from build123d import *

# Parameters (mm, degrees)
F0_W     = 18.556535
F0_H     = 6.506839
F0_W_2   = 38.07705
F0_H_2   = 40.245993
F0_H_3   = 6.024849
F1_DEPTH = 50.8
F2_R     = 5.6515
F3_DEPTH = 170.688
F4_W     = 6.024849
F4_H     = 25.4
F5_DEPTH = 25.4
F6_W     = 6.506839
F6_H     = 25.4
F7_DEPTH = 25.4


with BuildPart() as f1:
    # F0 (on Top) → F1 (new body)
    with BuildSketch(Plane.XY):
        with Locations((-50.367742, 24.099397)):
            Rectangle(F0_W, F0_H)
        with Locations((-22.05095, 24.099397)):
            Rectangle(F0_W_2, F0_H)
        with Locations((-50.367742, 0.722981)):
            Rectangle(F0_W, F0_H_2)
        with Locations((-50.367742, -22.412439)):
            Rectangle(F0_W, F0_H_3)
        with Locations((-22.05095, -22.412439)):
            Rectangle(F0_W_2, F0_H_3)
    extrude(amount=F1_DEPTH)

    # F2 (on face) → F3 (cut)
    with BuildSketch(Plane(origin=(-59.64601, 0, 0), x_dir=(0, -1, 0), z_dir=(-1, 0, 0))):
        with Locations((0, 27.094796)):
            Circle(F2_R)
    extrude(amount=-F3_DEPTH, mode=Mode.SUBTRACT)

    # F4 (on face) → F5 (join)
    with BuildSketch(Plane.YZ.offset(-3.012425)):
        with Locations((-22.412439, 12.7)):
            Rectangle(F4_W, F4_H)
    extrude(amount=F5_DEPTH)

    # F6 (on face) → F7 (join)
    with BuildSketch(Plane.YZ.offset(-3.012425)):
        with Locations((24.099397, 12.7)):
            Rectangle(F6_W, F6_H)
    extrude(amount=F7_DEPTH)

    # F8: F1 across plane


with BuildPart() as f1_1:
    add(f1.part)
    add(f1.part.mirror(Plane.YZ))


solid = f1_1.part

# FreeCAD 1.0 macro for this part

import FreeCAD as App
import Part
import Sketcher

V = App.Vector
Q = App.Units.Quantity

doc = App.newDocument("Part")
body = doc.addObject("PartDesign::Body", "Body")

# Sketch on XY plane
sketch1 = body.newObject("Sketcher::SketchObject", "Sketch")
sketch1.AttachmentSupport = (doc.getObject("XY_Plane"), [""])
sketch1.MapMode = "FlatFace"
sketch1.addGeometry([
    Part.LineSegment(V(-3, 21, 0), V(-3, 27, 0)),  # 0
    Part.LineSegment(V(-3, 27, 0), V(-60, 27, 0)),  # 1
    Part.LineSegment(V(-60, 27, 0), V(-60, -25, 0)),  # 2
    Part.LineSegment(V(-60, -25, 0), V(-3, -25, 0)),  # 3
    Part.LineSegment(V(-3, -25, 0), V(-3, -19, 0)),  # 4
    Part.LineSegment(V(-3, -19, 0), V(-41, -19, 0)),  # 5
    Part.LineSegment(V(-41, -19, 0), V(-41, 21, 0)),  # 6
    Part.LineSegment(V(-41, 21, 0), V(-3, 21, 0)),  # 7
], False)
sketch1.addConstraint([
    Sketcher.Constraint("Coincident", 0, 2, 1, 1),
    Sketcher.Constraint("Coincident", 1, 2, 2, 1),
    Sketcher.Constraint("Coincident", 2, 2, 3, 1),
    Sketcher.Constraint("Coincident", 3, 2, 4, 1),
    Sketcher.Constraint("Coincident", 4, 2, 5, 1),
    Sketcher.Constraint("Coincident", 5, 2, 6, 1),
    Sketcher.Constraint("Coincident", 6, 2, 7, 1),
    Sketcher.Constraint("Coincident", 7, 2, 0, 1),
    Sketcher.Constraint("Vertical", 0),
    Sketcher.Constraint("Horizontal", 1),
    Sketcher.Constraint("Vertical", 2),
    Sketcher.Constraint("Horizontal", 3),
    Sketcher.Constraint("Vertical", 4),
    Sketcher.Constraint("Horizontal", 5),
    Sketcher.Constraint("Vertical", 6),
    Sketcher.Constraint("Horizontal", 7),
    Sketcher.Constraint("Vertical", 0, 2, 3, 2),
    Sketcher.Constraint("DistanceX", 5, 2, 5, 1, Q("38.07705 mm")),
    Sketcher.Constraint("DistanceY", 0, 1, 0, 2, Q("6.506839 mm")),
    Sketcher.Constraint("DistanceY", 2, 2, 2, 1, Q("52.77768 mm")),
    Sketcher.Constraint("DistanceY", 4, 1, 4, 2, Q("6.024849 mm")),
    Sketcher.Constraint("DistanceX", 1, 2, 1, 1, Q("56.633584 mm")),
    Sketcher.Constraint("DistanceX", 1, 2, -1, 1, Q("59.646009 mm")),
    Sketcher.Constraint("DistanceY", -1, 1, 0, 2, Q("27.352816 mm")),
])
pad1 = body.newObject("PartDesign::Pad", "Pad")
pad1.Profile = sketch1
pad1.Length = Q("2 in")

# Sketch on YZ plane
sketch2 = body.newObject("Sketcher::SketchObject", "Sketch001")
sketch2.AttachmentSupport = (doc.getObject("YZ_Plane"), [""])
sketch2.MapMode = "FlatFace"
sketch2.AttachmentOffset = App.Placement(V(0, 0, -59.64601), App.Rotation())
sketch2.addGeometry(Part.Circle(V(0, 27, 0), V(0, 0, 1), 6), False)
sketch2.addConstraint([
    Sketcher.Constraint("PointOnObject", 0, 3, -2),
    Sketcher.Constraint("Diameter", 0, Q("0.445 in")),
    Sketcher.Constraint("DistanceY", -1, 1, 0, 3, Q("27.094796 mm")),
])
pocket1 = body.newObject("PartDesign::Pocket", "Pocket")
pocket1.Profile = sketch2
pocket1.Length = Q("6.72 in")
pocket1.Reversed = True

# Sketch on YZ plane
sketch3 = body.newObject("Sketcher::SketchObject", "Sketch002")
sketch3.AttachmentSupport = (doc.getObject("YZ_Plane"), [""])
sketch3.MapMode = "FlatFace"
sketch3.AttachmentOffset = App.Placement(V(0, 0, -3.012425), App.Rotation())
sketch3.addGeometry([
    Part.LineSegment(V(-25, 25, 0), V(-25, 0, 0)),
    Part.LineSegment(V(-25, 0, 0), V(-19, 0, 0)),
    Part.LineSegment(V(-19, 0, 0), V(-19, 25, 0)),
    Part.LineSegment(V(-19, 25, 0), V(-25, 25, 0)),
], False)
sketch3.addConstraint([
    Sketcher.Constraint("Coincident", 0, 2, 1, 1),
    Sketcher.Constraint("Coincident", 1, 2, 2, 1),
    Sketcher.Constraint("Coincident", 2, 2, 3, 1),
    Sketcher.Constraint("Coincident", 3, 2, 0, 1),
    Sketcher.Constraint("Vertical", 0),
    Sketcher.Constraint("Horizontal", 1),
    Sketcher.Constraint("Vertical", 2),
    Sketcher.Constraint("Horizontal", 3),
    Sketcher.Constraint("PointOnObject", 0, 2, -1),
    Sketcher.Constraint("DistanceY", 0, 2, 0, 1, Q("1 in")),
    Sketcher.Constraint("DistanceX", 1, 1, 1, 2, Q("6.024849 mm")),
    Sketcher.Constraint("DistanceX", 0, 2, -1, 1, Q("25.424864 mm")),
])
pad2 = body.newObject("PartDesign::Pad", "Pad001")
pad2.Profile = sketch3
pad2.Length = Q("1 in")

# Sketch on YZ plane
sketch4 = body.newObject("Sketcher::SketchObject", "Sketch003")
sketch4.AttachmentSupport = (doc.getObject("YZ_Plane"), [""])
sketch4.MapMode = "FlatFace"
sketch4.AttachmentOffset = App.Placement(V(0, 0, -3.012425), App.Rotation())
sketch4.addGeometry([
    Part.LineSegment(V(21, 25, 0), V(21, 0, 0)),
    Part.LineSegment(V(21, 0, 0), V(27, 0, 0)),
    Part.LineSegment(V(27, 0, 0), V(27, 25, 0)),
    Part.LineSegment(V(27, 25, 0), V(21, 25, 0)),
], False)
sketch4.addConstraint([
    Sketcher.Constraint("Coincident", 0, 2, 1, 1),
    Sketcher.Constraint("Coincident", 1, 2, 2, 1),
    Sketcher.Constraint("Coincident", 2, 2, 3, 1),
    Sketcher.Constraint("Coincident", 3, 2, 0, 1),
    Sketcher.Constraint("Vertical", 0),
    Sketcher.Constraint("Horizontal", 1),
    Sketcher.Constraint("Vertical", 2),
    Sketcher.Constraint("Horizontal", 3),
    Sketcher.Constraint("PointOnObject", 0, 2, -1),
    Sketcher.Constraint("DistanceY", 0, 2, 0, 1, Q("1 in")),
    Sketcher.Constraint("DistanceX", 1, 1, 1, 2, Q("6.506839 mm")),
    Sketcher.Constraint("DistanceX", -1, 1, 0, 2, Q("20.845978 mm")),
])
pad3 = body.newObject("PartDesign::Pad", "Pad002")
pad3.Profile = sketch4
pad3.Length = Q("1 in")
body2 = doc.addObject("PartDesign::Body", "Body001")
doc.recompute()

body2.BaseFeature = body
doc.recompute()

mirroring = doc.addObject("Part::Mirroring", "Mirroring")
mirroring.Source = body
mirroring.Base = V(0, 0, 0)
mirroring.Normal = V(1, 0, 0)
body3 = doc.addObject("PartDesign::Body", "Body002")
body3.BaseFeature = mirroring
boolean = body2.newObject("PartDesign::Boolean", "Boolean")
boolean.Type = "Fuse"
boolean.addObjects([body3])
doc.recompute()
mirroring.Visibility = False

doc.recompute()
